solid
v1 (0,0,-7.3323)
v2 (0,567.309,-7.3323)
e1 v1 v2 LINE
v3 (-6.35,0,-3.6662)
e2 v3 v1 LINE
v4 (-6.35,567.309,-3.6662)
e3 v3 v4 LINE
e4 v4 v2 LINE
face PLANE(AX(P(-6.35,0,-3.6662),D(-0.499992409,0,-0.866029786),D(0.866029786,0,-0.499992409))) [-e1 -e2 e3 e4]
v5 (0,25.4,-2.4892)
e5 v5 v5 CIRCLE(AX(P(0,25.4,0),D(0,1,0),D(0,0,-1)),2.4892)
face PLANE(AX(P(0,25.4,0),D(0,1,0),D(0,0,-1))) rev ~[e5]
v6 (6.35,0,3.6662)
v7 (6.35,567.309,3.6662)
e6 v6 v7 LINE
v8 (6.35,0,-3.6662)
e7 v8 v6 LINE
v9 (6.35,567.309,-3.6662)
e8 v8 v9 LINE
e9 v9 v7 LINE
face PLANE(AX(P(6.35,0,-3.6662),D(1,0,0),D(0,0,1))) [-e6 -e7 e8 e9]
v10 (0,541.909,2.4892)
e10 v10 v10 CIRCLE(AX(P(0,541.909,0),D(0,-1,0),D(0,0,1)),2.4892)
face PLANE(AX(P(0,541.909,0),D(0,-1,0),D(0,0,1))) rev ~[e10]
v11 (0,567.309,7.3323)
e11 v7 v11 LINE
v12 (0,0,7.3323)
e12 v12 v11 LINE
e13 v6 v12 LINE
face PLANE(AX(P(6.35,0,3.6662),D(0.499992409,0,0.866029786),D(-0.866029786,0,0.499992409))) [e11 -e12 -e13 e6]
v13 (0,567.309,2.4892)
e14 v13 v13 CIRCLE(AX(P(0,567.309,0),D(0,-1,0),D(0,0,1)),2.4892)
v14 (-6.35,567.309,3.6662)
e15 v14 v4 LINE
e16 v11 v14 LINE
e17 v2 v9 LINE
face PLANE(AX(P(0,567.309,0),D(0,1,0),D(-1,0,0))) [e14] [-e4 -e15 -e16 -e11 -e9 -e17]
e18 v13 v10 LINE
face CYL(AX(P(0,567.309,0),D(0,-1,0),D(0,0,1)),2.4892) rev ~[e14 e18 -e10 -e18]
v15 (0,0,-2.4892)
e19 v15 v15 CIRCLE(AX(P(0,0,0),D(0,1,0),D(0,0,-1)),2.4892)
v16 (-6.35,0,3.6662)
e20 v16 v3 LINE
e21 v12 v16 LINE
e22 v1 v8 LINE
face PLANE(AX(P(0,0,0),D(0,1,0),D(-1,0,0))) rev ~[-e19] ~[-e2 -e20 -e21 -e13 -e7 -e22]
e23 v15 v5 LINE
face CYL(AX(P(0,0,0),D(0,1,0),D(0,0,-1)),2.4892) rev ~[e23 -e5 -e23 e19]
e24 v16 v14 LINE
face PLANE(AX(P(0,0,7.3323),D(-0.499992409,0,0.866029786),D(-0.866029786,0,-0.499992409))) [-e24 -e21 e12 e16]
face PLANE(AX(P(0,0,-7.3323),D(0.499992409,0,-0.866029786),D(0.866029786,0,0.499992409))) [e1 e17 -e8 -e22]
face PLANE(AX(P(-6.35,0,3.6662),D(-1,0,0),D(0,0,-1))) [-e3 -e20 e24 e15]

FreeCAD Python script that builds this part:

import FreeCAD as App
import Part
import Sketcher
from FreeCAD import Vector
Q = App.Units.Quantity

doc = App.newDocument("Part")
body = doc.addObject("PartDesign::Body", "Body")

# Sketch on XZ plane
sketch1 = doc.addObject("Sketcher::SketchObject", "Sketch")
body.addObject(sketch1)
sketch1.AttachmentSupport = (doc.XZ_Plane, [""])
sketch1.MapMode = "FlatFace"
sketch1.addGeometry(Part.LineSegment(Vector(0, -7, 0), Vector(-6, -4, 0)), False)
sketch1.addGeometry(Part.LineSegment(Vector(-6, -4, 0), Vector(-6, 4, 0)), False)
sketch1.addGeometry(Part.LineSegment(Vector(-6, 4, 0), Vector(0, 7, 0)), False)
sketch1.addGeometry(Part.LineSegment(Vector(0, 7, 0), Vector(6, 4, 0)), False)
sketch1.addGeometry(Part.LineSegment(Vector(6, 4, 0), Vector(6, -4, 0)), False)
sketch1.addGeometry(Part.LineSegment(Vector(6, -4, 0), Vector(0, -7, 0)), False)
sketch1.addConstraint(Sketcher.Constraint("Coincident", 0, 2, 1, 1))
sketch1.addConstraint(Sketcher.Constraint("Coincident", 1, 2, 2, 1))
sketch1.addConstraint(Sketcher.Constraint("Coincident", 2, 2, 3, 1))
sketch1.addConstraint(Sketcher.Constraint("Coincident", 3, 2, 4, 1))
sketch1.addConstraint(Sketcher.Constraint("Coincident", 4, 2, 5, 1))
sketch1.addConstraint(Sketcher.Constraint("Coincident", 5, 2, 0, 1))
sketch1.addConstraint(Sketcher.Constraint("Vertical", 1))
sketch1.addConstraint(Sketcher.Constraint("Vertical", 4))
sketch1.addConstraint(Sketcher.Constraint("Symmetric", 0, 2, 3, 2, -1, 1))
sketch1.addConstraint(Sketcher.Constraint("Symmetric", 2, 2, 5, 2, -1, 1))
sketch1.addConstraint(Sketcher.Constraint("PointOnObject", 2, 2, -2))
sketch1.addConstraint(Sketcher.Constraint("Parallel", 2, 5))
sketch1.addConstraint(Sketcher.Constraint("Horizontal", 1, 2, 3, 2))
sketch1.addConstraint(Sketcher.Constraint("DistanceX", 1, 2, 3, 2, Q("0.5 in")))
sketch1.addConstraint(Sketcher.Constraint("Angle", 0, Q("150.0005 deg")))
sketch1.addConstraint(Sketcher.Constraint("DistanceY", 0, 2, 2, 2, Q("0.433 in")))
pad1 = doc.addObject("PartDesign::Pad", "Pad")
body.addObject(pad1)
pad1.Profile = sketch1
pad1.Length = Q("22.335 in")
pad1.Reversed = True

# Sketch on XZ plane
sketch2 = doc.addObject("Sketcher::SketchObject", "Sketch001")
body.addObject(sketch2)
sketch2.AttachmentSupport = (doc.XZ_Plane, [""])
sketch2.MapMode = "FlatFace"
sketch2.addGeometry(Part.Circle(Vector(0, 0, 0), Vector(0, 0, 1), 2.5), False)
sketch2.addConstraint(Sketcher.Constraint("Coincident", 0, 3, -1, 1))
sketch2.addConstraint(Sketcher.Constraint("Diameter", 0, Q("0.196 in")))
doc.recompute()
hole = doc.addObject("PartDesign::Hole", "Hole")
body.addObject(hole)
hole.Profile = sketch2
hole.ThreadType = "None"
hole.Diameter = Q("0.196 in")
hole.DepthType = "Dimension"
hole.Depth = Q("1 in")
hole.DrillPoint = "Flat"

# Sketch on XZ plane
sketch3 = doc.addObject("Sketcher::SketchObject", "Sketch002")
body.addObject(sketch3)
sketch3.AttachmentSupport = (doc.XZ_Plane, [""])
sketch3.MapMode = "FlatFace"
sketch3.AttachmentOffset = App.Placement(Vector(0, 0, -22.335 * 25.4), App.Rotation())
sketch3.addGeometry(Part.Circle(Vector(0, 0, 0), Vector(0, 0, 1), 2.5), False)
sketch3.addConstraint(Sketcher.Constraint("Coincident", 0, 3, -1, 1))
sketch3.addConstraint(Sketcher.Constraint("Diameter", 0, Q("0.196 in")))
doc.recompute()
hole2 = doc.addObject("PartDesign::Hole", "Hole001")
body.addObject(hole2)
hole2.Profile = sketch3
hole2.ThreadType = "None"
hole2.Diameter = Q("0.196 in")
hole2.DepthType = "Dimension"
hole2.Depth = Q("1 in")
hole2.DrillPoint = "Flat"
hole2.Reversed = True

doc.recompute()
